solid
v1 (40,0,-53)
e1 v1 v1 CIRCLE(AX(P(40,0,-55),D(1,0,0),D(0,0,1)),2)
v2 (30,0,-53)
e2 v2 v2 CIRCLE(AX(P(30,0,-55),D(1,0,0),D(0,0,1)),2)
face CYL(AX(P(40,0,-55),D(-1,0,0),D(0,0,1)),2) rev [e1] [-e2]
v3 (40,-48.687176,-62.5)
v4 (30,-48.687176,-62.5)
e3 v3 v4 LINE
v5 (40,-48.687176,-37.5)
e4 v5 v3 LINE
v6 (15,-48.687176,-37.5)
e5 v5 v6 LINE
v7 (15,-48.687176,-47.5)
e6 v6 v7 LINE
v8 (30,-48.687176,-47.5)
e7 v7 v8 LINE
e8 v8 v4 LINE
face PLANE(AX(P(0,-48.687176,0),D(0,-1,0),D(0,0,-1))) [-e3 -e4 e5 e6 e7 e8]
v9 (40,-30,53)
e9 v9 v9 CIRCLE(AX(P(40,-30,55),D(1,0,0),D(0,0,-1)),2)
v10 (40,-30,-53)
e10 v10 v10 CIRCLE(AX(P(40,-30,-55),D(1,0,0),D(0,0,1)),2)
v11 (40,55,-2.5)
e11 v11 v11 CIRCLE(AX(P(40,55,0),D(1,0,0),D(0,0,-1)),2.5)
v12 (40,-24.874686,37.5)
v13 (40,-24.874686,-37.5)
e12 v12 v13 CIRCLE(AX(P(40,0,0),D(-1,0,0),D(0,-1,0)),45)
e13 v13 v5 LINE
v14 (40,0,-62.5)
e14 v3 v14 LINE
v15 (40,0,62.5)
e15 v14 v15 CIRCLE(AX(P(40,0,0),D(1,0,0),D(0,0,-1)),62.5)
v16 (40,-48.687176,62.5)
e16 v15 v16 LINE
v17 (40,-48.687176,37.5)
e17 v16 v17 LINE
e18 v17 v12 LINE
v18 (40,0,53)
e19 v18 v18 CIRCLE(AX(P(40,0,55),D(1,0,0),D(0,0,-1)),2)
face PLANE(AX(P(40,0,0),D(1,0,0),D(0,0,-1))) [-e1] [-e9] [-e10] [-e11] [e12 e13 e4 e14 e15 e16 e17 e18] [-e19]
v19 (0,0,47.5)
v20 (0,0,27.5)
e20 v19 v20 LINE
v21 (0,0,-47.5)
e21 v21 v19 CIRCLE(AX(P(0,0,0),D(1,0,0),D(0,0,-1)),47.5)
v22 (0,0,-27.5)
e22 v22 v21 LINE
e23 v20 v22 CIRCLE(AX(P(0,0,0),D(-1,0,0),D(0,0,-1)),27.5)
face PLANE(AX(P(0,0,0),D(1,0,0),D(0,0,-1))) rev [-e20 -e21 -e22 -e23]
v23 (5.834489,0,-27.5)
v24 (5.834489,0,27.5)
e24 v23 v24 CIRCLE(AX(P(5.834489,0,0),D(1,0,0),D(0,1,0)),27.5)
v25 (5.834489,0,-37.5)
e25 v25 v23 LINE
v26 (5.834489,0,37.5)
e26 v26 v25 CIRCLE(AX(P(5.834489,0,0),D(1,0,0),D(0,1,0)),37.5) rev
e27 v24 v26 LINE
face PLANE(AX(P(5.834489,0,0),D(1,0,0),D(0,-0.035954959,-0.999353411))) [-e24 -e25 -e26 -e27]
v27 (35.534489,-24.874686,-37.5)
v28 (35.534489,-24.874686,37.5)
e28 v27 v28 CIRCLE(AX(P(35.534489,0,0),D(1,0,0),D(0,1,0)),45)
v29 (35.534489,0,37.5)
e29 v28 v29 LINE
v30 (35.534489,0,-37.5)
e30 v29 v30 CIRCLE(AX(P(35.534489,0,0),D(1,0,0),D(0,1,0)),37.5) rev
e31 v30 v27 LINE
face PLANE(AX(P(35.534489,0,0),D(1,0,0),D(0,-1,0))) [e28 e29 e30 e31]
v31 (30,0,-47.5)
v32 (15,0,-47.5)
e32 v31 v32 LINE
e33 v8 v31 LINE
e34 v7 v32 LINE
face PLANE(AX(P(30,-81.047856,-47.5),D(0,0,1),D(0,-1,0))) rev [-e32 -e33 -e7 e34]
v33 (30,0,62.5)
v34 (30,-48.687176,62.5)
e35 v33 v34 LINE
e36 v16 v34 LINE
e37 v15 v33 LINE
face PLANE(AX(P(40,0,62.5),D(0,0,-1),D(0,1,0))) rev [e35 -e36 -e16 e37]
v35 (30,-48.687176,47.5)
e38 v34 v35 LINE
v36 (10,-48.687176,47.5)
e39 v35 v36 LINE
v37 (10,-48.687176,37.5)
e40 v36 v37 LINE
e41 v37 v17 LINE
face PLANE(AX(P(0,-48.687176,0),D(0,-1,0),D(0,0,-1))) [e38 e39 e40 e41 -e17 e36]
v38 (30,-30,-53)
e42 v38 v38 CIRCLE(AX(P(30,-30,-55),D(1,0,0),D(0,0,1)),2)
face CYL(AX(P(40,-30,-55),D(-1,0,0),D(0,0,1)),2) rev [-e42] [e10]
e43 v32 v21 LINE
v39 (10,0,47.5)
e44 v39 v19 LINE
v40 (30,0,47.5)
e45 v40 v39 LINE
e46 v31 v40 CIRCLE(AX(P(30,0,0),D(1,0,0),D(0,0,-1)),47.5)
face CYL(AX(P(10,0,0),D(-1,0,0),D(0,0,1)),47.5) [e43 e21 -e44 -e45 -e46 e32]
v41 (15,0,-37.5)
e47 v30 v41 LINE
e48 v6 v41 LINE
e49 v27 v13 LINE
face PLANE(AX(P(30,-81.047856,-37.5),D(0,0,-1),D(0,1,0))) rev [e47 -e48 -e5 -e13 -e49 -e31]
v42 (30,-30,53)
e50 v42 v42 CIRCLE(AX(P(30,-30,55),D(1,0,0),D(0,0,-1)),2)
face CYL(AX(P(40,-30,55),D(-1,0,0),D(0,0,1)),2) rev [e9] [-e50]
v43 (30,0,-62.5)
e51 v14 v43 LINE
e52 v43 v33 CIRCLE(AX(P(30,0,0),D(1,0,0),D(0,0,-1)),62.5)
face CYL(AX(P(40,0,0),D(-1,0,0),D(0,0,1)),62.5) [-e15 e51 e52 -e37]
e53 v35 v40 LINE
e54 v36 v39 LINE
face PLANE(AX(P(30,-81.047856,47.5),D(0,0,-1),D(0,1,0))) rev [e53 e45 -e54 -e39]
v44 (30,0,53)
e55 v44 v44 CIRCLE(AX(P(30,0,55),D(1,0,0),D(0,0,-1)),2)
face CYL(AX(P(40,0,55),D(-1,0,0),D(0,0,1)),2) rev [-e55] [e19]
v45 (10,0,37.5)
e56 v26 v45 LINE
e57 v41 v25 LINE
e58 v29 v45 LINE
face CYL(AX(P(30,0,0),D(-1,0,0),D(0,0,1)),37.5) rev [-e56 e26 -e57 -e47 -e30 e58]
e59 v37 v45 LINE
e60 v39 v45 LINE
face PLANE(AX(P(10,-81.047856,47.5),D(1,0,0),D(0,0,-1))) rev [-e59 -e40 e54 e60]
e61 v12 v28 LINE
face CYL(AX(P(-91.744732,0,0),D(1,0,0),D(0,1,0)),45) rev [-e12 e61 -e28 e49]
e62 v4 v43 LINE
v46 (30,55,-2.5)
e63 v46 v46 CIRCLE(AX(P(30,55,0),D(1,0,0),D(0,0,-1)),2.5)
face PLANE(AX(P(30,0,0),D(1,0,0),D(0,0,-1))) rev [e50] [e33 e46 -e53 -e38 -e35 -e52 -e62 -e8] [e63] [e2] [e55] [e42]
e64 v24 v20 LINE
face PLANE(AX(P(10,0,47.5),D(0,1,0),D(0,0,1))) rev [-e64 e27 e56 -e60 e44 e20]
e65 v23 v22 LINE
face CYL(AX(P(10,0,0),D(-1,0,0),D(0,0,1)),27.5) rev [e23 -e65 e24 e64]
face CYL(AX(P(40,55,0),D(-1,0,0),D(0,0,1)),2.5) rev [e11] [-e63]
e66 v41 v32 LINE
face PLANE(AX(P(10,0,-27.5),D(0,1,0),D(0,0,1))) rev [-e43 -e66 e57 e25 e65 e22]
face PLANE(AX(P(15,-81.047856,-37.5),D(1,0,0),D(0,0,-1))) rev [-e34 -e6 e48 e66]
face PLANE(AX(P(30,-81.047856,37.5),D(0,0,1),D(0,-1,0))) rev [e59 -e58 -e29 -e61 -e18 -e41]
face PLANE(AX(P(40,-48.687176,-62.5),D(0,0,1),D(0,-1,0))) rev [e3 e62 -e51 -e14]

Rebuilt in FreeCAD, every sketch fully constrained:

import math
import FreeCAD as App
import Part
import Sketcher

doc = App.newDocument("Part")
body = doc.addObject("PartDesign::Body", "Body")

# Sketch on YZ plane
sketch1 = body.newObject("Sketcher::SketchObject", "Sketch")
sketch1.AttachmentSupport = (doc.getObject("YZ_Plane"), [""])
sketch1.MapMode = "FlatFace"
sketch1.addGeometry([
    Part.LineSegment(App.Vector(0, 48, 0), App.Vector(0, 28, 0)),
    Part.ArcOfCircle(Part.Circle(App.Vector(0, 0, 0), App.Vector(0, 0, 1), 28), math.radians(-90), math.radians(90)),
    Part.LineSegment(App.Vector(0, -28, 0), App.Vector(0, -48, 0)),
    Part.ArcOfCircle(Part.Circle(App.Vector(0, 0, 0), App.Vector(0, 0, 1), 48), math.radians(-90), math.radians(90)),
], False)
sketch1.addConstraint([
    Sketcher.Constraint("Coincident", 0, 2, 1, 2),
    Sketcher.Constraint("Coincident", 1, 1, 2, 1),
    Sketcher.Constraint("Coincident", 2, 2, 3, 1),
    Sketcher.Constraint("Coincident", 3, 2, 0, 1),
    Sketcher.Constraint("Vertical", 0),
    Sketcher.Constraint("Vertical", 2),
    Sketcher.Constraint("Coincident", 1, 3, -1, 1),
    Sketcher.Constraint("Coincident", 3, 3, -1, 1),
    Sketcher.Constraint("PointOnObject", 0, 2, -2),
    Sketcher.Constraint("PointOnObject", 1, 1, -2),
    Sketcher.Constraint("Radius", 1, 27.5),
    Sketcher.Constraint("Radius", 3, 47.5),
])
pad1 = body.newObject("PartDesign::Pad", "Pad")
pad1.Profile = sketch1
pad1.Length = 10

# Sketch on YZ plane
sketch2 = body.newObject("Sketcher::SketchObject", "Sketch001")
sketch2.AttachmentSupport = (doc.getObject("YZ_Plane"), [""])
sketch2.MapMode = "FlatFace"
sketch2.AttachmentOffset = App.Placement(App.Vector(0, 0, 10), App.Rotation())
sketch2.addGeometry([
    Part.LineSegment(App.Vector(0, 48, 0), App.Vector(0, 38, 0)),
    Part.ArcOfCircle(Part.Circle(App.Vector(0, 0, 0), App.Vector(0, 0, 1), 38), math.radians(-90), math.radians(90)),
    Part.LineSegment(App.Vector(0, -38, 0), App.Vector(0, -48, 0)),
    Part.ArcOfCircle(Part.Circle(App.Vector(0, 0, 0), App.Vector(0, 0, 1), 48), math.radians(-90), math.radians(90)),
], False)
sketch2.addConstraint([
    Sketcher.Constraint("Coincident", 0, 2, 1, 2),
    Sketcher.Constraint("Coincident", 1, 1, 2, 1),
    Sketcher.Constraint("Coincident", 2, 2, 3, 1),
    Sketcher.Constraint("Coincident", 3, 2, 0, 1),
    Sketcher.Constraint("Vertical", 0),
    Sketcher.Constraint("Vertical", 2),
    Sketcher.Constraint("Coincident", 1, 3, -1, 1),
    Sketcher.Constraint("Coincident", 3, 3, -1, 1),
    Sketcher.Constraint("PointOnObject", 0, 2, -2),
    Sketcher.Constraint("PointOnObject", 1, 1, -2),
    Sketcher.Constraint("Radius", 1, 37.5),
    Sketcher.Constraint("Radius", 3, 47.5),
])
pad2 = body.newObject("PartDesign::Pad", "Pad001")
pad2.Profile = sketch2
pad2.Length = 20

# Sketch on XZ plane
sketch3 = body.newObject("Sketcher::SketchObject", "Sketch002")
sketch3.AttachmentSupport = (doc.getObject("XZ_Plane"), [""])
sketch3.MapMode = "FlatFace"
sketch3.addGeometry([
    Part.LineSegment(App.Vector(10, 48, 0), App.Vector(10, 38, 0)),  # 0
    Part.LineSegment(App.Vector(10, 38, 0), App.Vector(30, 38, 0)),  # 1
    Part.LineSegment(App.Vector(30, 38, 0), App.Vector(30, 48, 0)),  # 2
    Part.LineSegment(App.Vector(30, 48, 0), App.Vector(10, 48, 0)),  # 3
    Part.LineSegment(App.Vector(15, -38, 0), App.Vector(15, -48, 0)),  # 4
    Part.LineSegment(App.Vector(15, -48, 0), App.Vector(30, -48, 0)),  # 5
    Part.LineSegment(App.Vector(30, -48, 0), App.Vector(30, -38, 0)),  # 6
    Part.LineSegment(App.Vector(30, -38, 0), App.Vector(15, -38, 0)),  # 7
], False)
sketch3.addConstraint([
    Sketcher.Constraint("Coincident", 0, 2, 1, 1),
    Sketcher.Constraint("Coincident", 1, 2, 2, 1),
    Sketcher.Constraint("Coincident", 2, 2, 3, 1),
    Sketcher.Constraint("Coincident", 3, 2, 0, 1),
    Sketcher.Constraint("Coincident", 4, 2, 5, 1),
    Sketcher.Constraint("Coincident", 5, 2, 6, 1),
    Sketcher.Constraint("Coincident", 6, 2, 7, 1),
    Sketcher.Constraint("Coincident", 7, 2, 4, 1),
    Sketcher.Constraint("Vertical", 0),
    Sketcher.Constraint("Horizontal", 1),
    Sketcher.Constraint("Vertical", 2),
    Sketcher.Constraint("Horizontal", 3),
    Sketcher.Constraint("Vertical", 4),
    Sketcher.Constraint("Horizontal", 5),
    Sketcher.Constraint("Vertical", 6),
    Sketcher.Constraint("Horizontal", 7),
    Sketcher.Constraint("Symmetric", 2, 2, 5, 2, -1),
    Sketcher.Constraint("Equal", 2, 4),
    Sketcher.Constraint("DistanceX", 1, 1, 1, 2, 20.0),
    Sketcher.Constraint("DistanceX", 5, 1, 5, 2, 15.0),
    Sketcher.Constraint("DistanceY", 0, 2, 0, 1, 10.0),
    Sketcher.Constraint("DistanceX", -1, 1, 0, 2, 10.0),
    Sketcher.Constraint("DistanceY", 4, 2, 0, 2, 85.0),
])
pad3 = body.newObject("PartDesign::Pad", "Pad002")
pad3.Profile = sketch3
pad3.Length = 48.687176

# Sketch on YZ plane
sketch4 = body.newObject("Sketcher::SketchObject", "Sketch003")
sketch4.AttachmentSupport = (doc.getObject("YZ_Plane"), [""])
sketch4.MapMode = "FlatFace"
sketch4.AttachmentOffset = App.Placement(App.Vector(0, 0, 30), App.Rotation())
sketch4.addGeometry([
    Part.LineSegment(App.Vector(-48.7, -37.5, 0), App.Vector(-48.7, -62.5, 0)),  # 0
    Part.LineSegment(App.Vector(-48.7, -62.5, 0), App.Vector(0, -62.5, 0)),  # 1
    Part.ArcOfCircle(Part.Circle(App.Vector(0, 0, 0), App.Vector(0, 0, 1), 62.5), math.radians(-90), math.radians(90)),  # 2
    Part.LineSegment(App.Vector(0, 62.5, 0), App.Vector(-48.7, 62.5, 0)),  # 3
    Part.LineSegment(App.Vector(-48.7, 62.5, 0), App.Vector(-48.7, 37.5, 0)),  # 4
    Part.LineSegment(App.Vector(-48.7, 37.5, 0), App.Vector(0, 37.5, 0)),  # 5
    Part.ArcOfCircle(Part.Circle(App.Vector(0, 0, 0), App.Vector(0, 0, 1), 37.5), math.radians(-90), math.radians(90)),  # 6
    Part.LineSegment(App.Vector(0, -37.5, 0), App.Vector(-48.7, -37.5, 0)),  # 7
    Part.Circle(App.Vector(-30, -55, 0), App.Vector(0, 0, 1), 2),  # 8
    Part.Circle(App.Vector(0, -55, 0), App.Vector(0, 0, 1), 2),  # 9
    Part.Circle(App.Vector(-30, 55, 0), App.Vector(0, 0, 1), 2),  # 10
    Part.Circle(App.Vector(0, 55, 0), App.Vector(0, 0, 1), 2),  # 11
    Part.Circle(App.Vector(55, 0, 0), App.Vector(0, 0, 1), 2.5),  # 12
], False)
sketch4.addConstraint([
    Sketcher.Constraint("Coincident", 0, 2, 1, 1),
    Sketcher.Constraint("Tangent", 1, 2, 2, 1),
    Sketcher.Constraint("Tangent", 2, 2, 3, 1),
    Sketcher.Constraint("Coincident", 3, 2, 4, 1),
    Sketcher.Constraint("Coincident", 4, 2, 5, 1),
    Sketcher.Constraint("Tangent", 5, 2, 6, 2),
    Sketcher.Constraint("Tangent", 6, 1, 7, 1),
    Sketcher.Constraint("Coincident", 7, 2, 0, 1),
    Sketcher.Constraint("Vertical", 0),
    Sketcher.Constraint("Horizontal", 1),
    Sketcher.Constraint("Horizontal", 3),
    Sketcher.Constraint("Vertical", 4),
    Sketcher.Constraint("Horizontal", 5),
    Sketcher.Constraint("Horizontal", 7),
    Sketcher.Constraint("Coincident", 2, 3, -1, 1),
    Sketcher.Constraint("Coincident", 6, 3, -1, 1),
    Sketcher.Constraint("Equal", 8, 9),
    Sketcher.Constraint("Equal", 9, 10),
    Sketcher.Constraint("Equal", 10, 11),
    Sketcher.Constraint("Symmetric", 9, 3, 11, 3, -1, 1),
    Sketcher.Constraint("Symmetric", 8, 3, 10, 3, -1),
    Sketcher.Constraint("PointOnObject", 9, 3, -2),
    Sketcher.Constraint("PointOnObject", 12, 3, -1),
    Sketcher.Constraint("Horizontal", 8, 3, 9, 3),
    Sketcher.Constraint("Vertical", 0, 2, 3, 2),
    Sketcher.Constraint("Diameter", 8, 4.0),
    Sketcher.Constraint("Diameter", 12, 5.0),
    Sketcher.Constraint("Radius", 2, 62.5),
    Sketcher.Constraint("Radius", 6, 37.5),
    Sketcher.Constraint("DistanceX", 8, 3, -1, 1, 30.0),
    Sketcher.Constraint("DistanceY", 8, 3, -1, 1, 55.0),
    Sketcher.Constraint("DistanceX", -1, 1, 12, 3, 55.0),
    Sketcher.Constraint("DistanceX", 1, 1, 1, 2, 48.687176),
])
pad4 = body.newObject("PartDesign::Pad", "Pad003")
pad4.Profile = sketch4
pad4.Length = 10

# Sketch on YZ plane
sketch5 = body.newObject("Sketcher::SketchObject", "Sketch004")
sketch5.AttachmentSupport = (doc.getObject("YZ_Plane"), [""])
sketch5.MapMode = "FlatFace"
sketch5.AttachmentOffset = App.Placement(App.Vector(0, 0, 5.834489), App.Rotation())
sketch5.addGeometry([
    Part.LineSegment(App.Vector(0, -28, 0), App.Vector(0, -38, 0)),
    Part.ArcOfCircle(Part.Circle(App.Vector(0, 0, 0), App.Vector(0, 0, 1), 38), math.radians(-90), math.radians(90)),
    Part.LineSegment(App.Vector(0, 38, 0), App.Vector(0, 28, 0)),
    Part.ArcOfCircle(Part.Circle(App.Vector(0, 0, 0), App.Vector(0, 0, 1), 28), math.radians(-90), math.radians(90)),
], False)
sketch5.addConstraint([
    Sketcher.Constraint("Coincident", 0, 2, 1, 1),
    Sketcher.Constraint("Coincident", 1, 2, 2, 1),
    Sketcher.Constraint("Coincident", 2, 2, 3, 2),
    Sketcher.Constraint("Coincident", 3, 1, 0, 1),
    Sketcher.Constraint("Vertical", 0),
    Sketcher.Constraint("Vertical", 2),
    Sketcher.Constraint("Coincident", 1, 3, -1, 1),
    Sketcher.Constraint("Coincident", 3, 3, -1, 1),
    Sketcher.Constraint("PointOnObject", 0, 2, -2),
    Sketcher.Constraint("PointOnObject", 1, 2, -2),
    Sketcher.Constraint("Radius", 1, 37.5),
    Sketcher.Constraint("Radius", 3, 27.5),
])
pocket1 = body.newObject("PartDesign::Pocket", "Pocket")
pocket1.Profile = sketch5
pocket1.Length = 4.165511
pocket1.Reversed = True

# Sketch on YZ plane
sketch6 = body.newObject("Sketcher::SketchObject", "Sketch005")
sketch6.AttachmentSupport = (doc.getObject("YZ_Plane"), [""])
sketch6.MapMode = "FlatFace"
sketch6.AttachmentOffset = App.Placement(App.Vector(0, 0, 40), App.Rotation())
sketch6.addGeometry([
    Part.Circle(App.Vector(0, 0, 0), App.Vector(0, 0, 1), 45),
    Part.Circle(App.Vector(0, 0, 0), App.Vector(0, 0, 1), 36),
], False)
sketch6.addConstraint([
    Sketcher.Constraint("Coincident", 0, 3, -1, 1),
    Sketcher.Constraint("Coincident", 1, 3, -1, 1),
    Sketcher.Constraint("Diameter", 0, 90.0),
    Sketcher.Constraint("Diameter", 1, 72.0),
])
pocket2 = body.newObject("PartDesign::Pocket", "Pocket001")
pocket2.Profile = sketch6
pocket2.Length = 4.465511

doc.recompute()
